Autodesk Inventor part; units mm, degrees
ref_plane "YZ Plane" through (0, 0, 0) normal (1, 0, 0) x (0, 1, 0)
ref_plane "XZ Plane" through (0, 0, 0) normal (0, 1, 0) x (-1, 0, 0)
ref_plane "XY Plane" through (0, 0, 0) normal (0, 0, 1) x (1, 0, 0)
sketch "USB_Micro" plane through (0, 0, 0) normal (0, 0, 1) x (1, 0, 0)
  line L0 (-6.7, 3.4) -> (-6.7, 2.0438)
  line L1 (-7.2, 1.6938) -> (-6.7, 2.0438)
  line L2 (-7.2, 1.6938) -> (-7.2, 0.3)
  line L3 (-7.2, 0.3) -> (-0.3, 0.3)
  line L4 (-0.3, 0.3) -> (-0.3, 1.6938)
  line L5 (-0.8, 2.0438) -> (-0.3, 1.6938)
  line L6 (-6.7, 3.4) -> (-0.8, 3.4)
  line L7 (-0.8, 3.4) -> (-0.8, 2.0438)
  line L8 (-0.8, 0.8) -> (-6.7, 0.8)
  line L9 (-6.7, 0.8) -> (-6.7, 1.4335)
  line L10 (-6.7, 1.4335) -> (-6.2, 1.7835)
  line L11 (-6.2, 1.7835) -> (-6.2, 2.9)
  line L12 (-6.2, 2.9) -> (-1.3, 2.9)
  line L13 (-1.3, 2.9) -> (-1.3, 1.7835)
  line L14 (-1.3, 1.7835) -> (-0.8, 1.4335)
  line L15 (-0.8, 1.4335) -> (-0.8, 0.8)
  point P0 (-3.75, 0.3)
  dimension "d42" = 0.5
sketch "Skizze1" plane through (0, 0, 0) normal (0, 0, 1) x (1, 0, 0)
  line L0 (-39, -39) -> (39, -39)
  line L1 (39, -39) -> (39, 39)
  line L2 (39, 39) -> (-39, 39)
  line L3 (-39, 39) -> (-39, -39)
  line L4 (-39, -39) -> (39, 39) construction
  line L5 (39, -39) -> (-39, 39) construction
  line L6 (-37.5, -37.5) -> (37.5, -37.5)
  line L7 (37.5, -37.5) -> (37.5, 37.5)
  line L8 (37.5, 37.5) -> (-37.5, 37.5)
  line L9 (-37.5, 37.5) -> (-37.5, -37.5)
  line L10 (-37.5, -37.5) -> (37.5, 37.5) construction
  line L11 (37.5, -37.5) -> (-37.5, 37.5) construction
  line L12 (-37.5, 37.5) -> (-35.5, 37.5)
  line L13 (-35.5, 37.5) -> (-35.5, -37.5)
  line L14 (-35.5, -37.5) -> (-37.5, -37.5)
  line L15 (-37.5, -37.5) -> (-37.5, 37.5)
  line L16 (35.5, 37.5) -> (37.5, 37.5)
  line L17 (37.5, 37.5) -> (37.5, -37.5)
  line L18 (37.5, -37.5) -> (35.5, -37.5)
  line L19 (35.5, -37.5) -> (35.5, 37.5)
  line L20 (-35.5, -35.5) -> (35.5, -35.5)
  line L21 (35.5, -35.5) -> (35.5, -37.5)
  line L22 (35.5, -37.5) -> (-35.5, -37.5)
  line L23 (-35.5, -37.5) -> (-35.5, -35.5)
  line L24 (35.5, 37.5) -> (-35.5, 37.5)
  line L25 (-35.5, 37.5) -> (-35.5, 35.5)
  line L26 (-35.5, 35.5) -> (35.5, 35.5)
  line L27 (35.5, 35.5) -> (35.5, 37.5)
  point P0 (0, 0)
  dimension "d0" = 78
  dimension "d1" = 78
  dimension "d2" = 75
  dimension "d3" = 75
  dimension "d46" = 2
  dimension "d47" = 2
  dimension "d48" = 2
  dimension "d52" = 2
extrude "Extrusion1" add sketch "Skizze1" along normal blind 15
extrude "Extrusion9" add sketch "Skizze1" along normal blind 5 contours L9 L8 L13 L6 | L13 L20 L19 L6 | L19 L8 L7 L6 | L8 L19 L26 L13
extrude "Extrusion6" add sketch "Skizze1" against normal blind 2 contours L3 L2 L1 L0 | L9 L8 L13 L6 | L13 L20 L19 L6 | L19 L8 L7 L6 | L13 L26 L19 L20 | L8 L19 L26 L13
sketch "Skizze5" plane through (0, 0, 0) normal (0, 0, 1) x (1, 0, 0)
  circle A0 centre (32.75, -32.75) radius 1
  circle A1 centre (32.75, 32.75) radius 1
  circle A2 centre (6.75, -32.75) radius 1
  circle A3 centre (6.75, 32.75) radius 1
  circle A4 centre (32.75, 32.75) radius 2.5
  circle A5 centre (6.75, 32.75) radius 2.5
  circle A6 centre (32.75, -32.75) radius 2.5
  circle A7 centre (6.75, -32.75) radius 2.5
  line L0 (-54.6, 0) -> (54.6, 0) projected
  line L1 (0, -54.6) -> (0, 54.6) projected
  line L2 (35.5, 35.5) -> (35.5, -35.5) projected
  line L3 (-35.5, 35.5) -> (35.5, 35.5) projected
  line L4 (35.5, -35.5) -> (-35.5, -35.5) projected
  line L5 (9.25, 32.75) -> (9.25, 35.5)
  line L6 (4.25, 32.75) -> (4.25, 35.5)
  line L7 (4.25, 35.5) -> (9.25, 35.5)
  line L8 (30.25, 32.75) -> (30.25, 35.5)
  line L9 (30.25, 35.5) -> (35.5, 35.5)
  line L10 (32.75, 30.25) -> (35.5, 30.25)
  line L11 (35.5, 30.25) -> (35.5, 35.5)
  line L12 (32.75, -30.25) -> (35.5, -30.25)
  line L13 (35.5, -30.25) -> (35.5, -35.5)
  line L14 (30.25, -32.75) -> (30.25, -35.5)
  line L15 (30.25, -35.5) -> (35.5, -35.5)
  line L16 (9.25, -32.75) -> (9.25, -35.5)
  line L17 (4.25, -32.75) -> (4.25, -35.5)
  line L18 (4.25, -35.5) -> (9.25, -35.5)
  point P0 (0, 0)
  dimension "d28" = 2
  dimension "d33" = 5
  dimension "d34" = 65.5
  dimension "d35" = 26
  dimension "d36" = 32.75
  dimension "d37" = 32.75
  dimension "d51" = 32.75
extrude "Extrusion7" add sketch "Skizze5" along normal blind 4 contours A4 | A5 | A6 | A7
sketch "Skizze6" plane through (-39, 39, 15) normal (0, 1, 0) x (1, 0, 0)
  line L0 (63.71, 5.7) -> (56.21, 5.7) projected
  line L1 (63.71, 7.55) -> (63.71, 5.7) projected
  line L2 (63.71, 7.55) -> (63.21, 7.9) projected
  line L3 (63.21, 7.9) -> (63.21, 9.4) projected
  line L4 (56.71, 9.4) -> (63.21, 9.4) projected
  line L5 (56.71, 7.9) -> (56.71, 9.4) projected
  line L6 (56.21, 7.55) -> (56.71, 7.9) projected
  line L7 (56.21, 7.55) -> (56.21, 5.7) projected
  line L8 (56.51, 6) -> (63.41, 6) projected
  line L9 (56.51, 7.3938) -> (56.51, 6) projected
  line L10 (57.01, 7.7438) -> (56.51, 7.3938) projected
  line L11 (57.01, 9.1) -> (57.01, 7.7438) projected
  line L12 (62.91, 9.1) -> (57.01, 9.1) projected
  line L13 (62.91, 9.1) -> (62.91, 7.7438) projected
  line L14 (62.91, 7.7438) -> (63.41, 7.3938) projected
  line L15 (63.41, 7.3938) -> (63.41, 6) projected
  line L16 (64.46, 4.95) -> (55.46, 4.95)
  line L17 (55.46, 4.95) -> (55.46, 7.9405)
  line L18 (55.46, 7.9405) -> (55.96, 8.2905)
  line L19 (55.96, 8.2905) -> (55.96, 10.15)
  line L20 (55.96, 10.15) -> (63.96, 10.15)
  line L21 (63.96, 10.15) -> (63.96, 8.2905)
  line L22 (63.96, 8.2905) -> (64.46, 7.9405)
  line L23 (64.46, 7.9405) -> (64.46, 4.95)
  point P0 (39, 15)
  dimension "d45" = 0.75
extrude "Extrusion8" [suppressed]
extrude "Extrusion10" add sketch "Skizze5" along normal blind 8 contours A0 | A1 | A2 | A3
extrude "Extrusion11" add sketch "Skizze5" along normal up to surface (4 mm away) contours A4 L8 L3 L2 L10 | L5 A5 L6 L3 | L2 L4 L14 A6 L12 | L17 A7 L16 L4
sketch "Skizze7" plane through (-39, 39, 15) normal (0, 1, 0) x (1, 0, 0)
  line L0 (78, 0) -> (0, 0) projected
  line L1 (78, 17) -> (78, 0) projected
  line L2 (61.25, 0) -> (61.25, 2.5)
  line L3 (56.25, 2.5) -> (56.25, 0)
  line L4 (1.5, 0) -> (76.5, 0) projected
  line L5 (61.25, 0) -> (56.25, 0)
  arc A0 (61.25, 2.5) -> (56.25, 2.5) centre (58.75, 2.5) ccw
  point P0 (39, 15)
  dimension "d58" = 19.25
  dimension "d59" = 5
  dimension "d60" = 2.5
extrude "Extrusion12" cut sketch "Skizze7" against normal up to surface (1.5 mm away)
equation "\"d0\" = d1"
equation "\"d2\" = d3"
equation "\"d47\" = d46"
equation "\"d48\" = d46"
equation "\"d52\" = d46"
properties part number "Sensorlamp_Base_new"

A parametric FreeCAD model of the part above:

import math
import FreeCAD as App
import Part
import Sketcher
Q = App.Units.Quantity

doc = App.newDocument("Part")
params = doc.addObject("Spreadsheet::Sheet", "Params")
for row, (alias, value) in enumerate([
    ("sketch1_width", "78 mm"),
    ("sketch1_width2", "75 mm"),
    ("pad1_length", "15 mm"),
    ("sketch2_width", "75 mm"),
    ("pad2_length", "5 mm"),
    ("sketch3_width", "78 mm"),
    ("pad3_length", "2 mm"),
    ("sketch4_diameter", "5 mm"),
    ("sketch4_diameter2", "2 mm"),
    ("pad4_length", "4 mm"),
    ("sketch5_diameter", "2 mm"),
    ("pad5_length", "8 mm"),
    ("sketch6_radius", "2.5 mm"),
    ("sketch6_width", "2.75 mm"),
    ("pad6_length", "4 mm"),
    ("sketch7_radius", "2.5 mm"),
    ("sketch7_height", "2.5 mm"),
    ("pocket1_length", "1.5 mm"),
], start=1):
    params.set(f"A{row}", alias)
    params.set(f"B{row}", "=" + value)
    params.setAlias(f"B{row}", alias)

body = doc.addObject("PartDesign::Body", "Body")

# Sketch on XY plane
sketch1 = body.newObject("Sketcher::SketchObject", "Sketch")
sketch1.AttachmentSupport = (doc.getObject("XY_Plane"), [""])
sketch1.MapMode = "FlatFace"
sketch1.addGeometry([
    Part.LineSegment(App.Vector(-39, 39, 0), App.Vector(-39, -39, 0)),  # 0
    Part.LineSegment(App.Vector(-39, -39, 0), App.Vector(39, -39, 0)),  # 1
    Part.LineSegment(App.Vector(39, -39, 0), App.Vector(39, 39, 0)),  # 2
    Part.LineSegment(App.Vector(39, 39, 0), App.Vector(-39, 39, 0)),  # 3
    Part.LineSegment(App.Vector(38, -38, 0), App.Vector(-38, -38, 0)),  # 4
    Part.LineSegment(App.Vector(-38, -38, 0), App.Vector(-38, 38, 0)),  # 5
    Part.LineSegment(App.Vector(-38, 38, 0), App.Vector(38, 38, 0)),  # 6
    Part.LineSegment(App.Vector(38, 38, 0), App.Vector(38, -38, 0)),  # 7
], False)
sketch1.addConstraint([
    Sketcher.Constraint("Coincident", 0, 2, 1, 1),
    Sketcher.Constraint("Coincident", 1, 2, 2, 1),
    Sketcher.Constraint("Coincident", 2, 2, 3, 1),
    Sketcher.Constraint("Coincident", 3, 2, 0, 1),
    Sketcher.Constraint("Coincident", 4, 2, 5, 1),
    Sketcher.Constraint("Coincident", 5, 2, 6, 1),
    Sketcher.Constraint("Coincident", 6, 2, 7, 1),
    Sketcher.Constraint("Coincident", 7, 2, 4, 1),
    Sketcher.Constraint("Vertical", 0),
    Sketcher.Constraint("Horizontal", 1),
    Sketcher.Constraint("Vertical", 2),
    Sketcher.Constraint("Horizontal", 3),
    Sketcher.Constraint("Horizontal", 4),
    Sketcher.Constraint("Vertical", 5),
    Sketcher.Constraint("Horizontal", 6),
    Sketcher.Constraint("Vertical", 7),
    Sketcher.Constraint("Symmetric", 0, 2, 2, 2, -1, 1),
    Sketcher.Constraint("Symmetric", 4, 2, 6, 2, -1, 1),
    Sketcher.Constraint("Equal", 3, 0),
    Sketcher.Constraint("Equal", 6, 5),
    Sketcher.Constraint("DistanceX", 1, 1, 1, 2, Q("78 mm")),
    Sketcher.Constraint("DistanceX", 4, 2, 4, 1, Q("75 mm")),
])
sketch1.setExpression("Constraints[20]", "Params.sketch1_width")
sketch1.setExpression("Constraints[21]", "Params.sketch1_width2")
pad1 = body.newObject("PartDesign::Pad", "Pad")
pad1.Profile = sketch1
pad1.setExpression("Length", "Params.pad1_length")

# Sketch on XY plane
sketch2 = body.newObject("Sketcher::SketchObject", "Sketch001")
sketch2.AttachmentSupport = (doc.getObject("XY_Plane"), [""])
sketch2.MapMode = "FlatFace"
sketch2.addGeometry([
    Part.LineSegment(App.Vector(-38, 38, 0), App.Vector(-38, -38, 0)),  # 0
    Part.LineSegment(App.Vector(-38, -38, 0), App.Vector(38, -38, 0)),  # 1
    Part.LineSegment(App.Vector(38, -38, 0), App.Vector(38, 38, 0)),  # 2
    Part.LineSegment(App.Vector(38, 38, 0), App.Vector(-38, 38, 0)),  # 3
    Part.LineSegment(App.Vector(-36, -36, 0), App.Vector(-36, 36, 0)),  # 4
    Part.LineSegment(App.Vector(-36, 36, 0), App.Vector(36, 36, 0)),  # 5
    Part.LineSegment(App.Vector(36, 36, 0), App.Vector(36, -36, 0)),  # 6
    Part.LineSegment(App.Vector(36, -36, 0), App.Vector(-36, -36, 0)),  # 7
], False)
sketch2.addConstraint([
    Sketcher.Constraint("Coincident", 0, 2, 1, 1),
    Sketcher.Constraint("Coincident", 1, 2, 2, 1),
    Sketcher.Constraint("Coincident", 2, 2, 3, 1),
    Sketcher.Constraint("Coincident", 3, 2, 0, 1),
    Sketcher.Constraint("Coincident", 4, 2, 5, 1),
    Sketcher.Constraint("Coincident", 5, 2, 6, 1),
    Sketcher.Constraint("Coincident", 6, 2, 7, 1),
    Sketcher.Constraint("Coincident", 7, 2, 4, 1),
    Sketcher.Constraint("Vertical", 0),
    Sketcher.Constraint("Horizontal", 1),
    Sketcher.Constraint("Vertical", 2),
    Sketcher.Constraint("Horizontal", 3),
    Sketcher.Constraint("Vertical", 4),
    Sketcher.Constraint("Horizontal", 5),
    Sketcher.Constraint("Vertical", 6),
    Sketcher.Constraint("Horizontal", 7),
    Sketcher.Constraint("Symmetric", 0, 2, 2, 2, -1, 1),
    Sketcher.Constraint("Symmetric", 4, 2, 6, 2, -1, 1),
    Sketcher.Constraint("Equal", 3, 0),
    Sketcher.Constraint("Equal", 7, 4),
    Sketcher.Constraint("DistanceX", 1, 1, 1, 2, Q("75 mm")),
    Sketcher.Constraint("DistanceX", 3, 2, 4, 2, Q("2 mm")),
])
sketch2.setExpression("Constraints[20]", "Params.sketch2_width")
pad2 = body.newObject("PartDesign::Pad", "Pad001")
pad2.Profile = sketch2
pad2.setExpression("Length", "Params.pad2_length")

# Sketch on XY plane
sketch3 = body.newObject("Sketcher::SketchObject", "Sketch002")
sketch3.AttachmentSupport = (doc.getObject("XY_Plane"), [""])
sketch3.MapMode = "FlatFace"
sketch3.addGeometry([
    Part.LineSegment(App.Vector(-39, 39, 0), App.Vector(-39, -39, 0)),
    Part.LineSegment(App.Vector(-39, -39, 0), App.Vector(39, -39, 0)),
    Part.LineSegment(App.Vector(39, -39, 0), App.Vector(39, 39, 0)),
    Part.LineSegment(App.Vector(39, 39, 0), App.Vector(-39, 39, 0)),
], False)
sketch3.addConstraint([
    Sketcher.Constraint("Coincident", 0, 2, 1, 1),
    Sketcher.Constraint("Coincident", 1, 2, 2, 1),
    Sketcher.Constraint("Coincident", 2, 2, 3, 1),
    Sketcher.Constraint("Coincident", 3, 2, 0, 1),
    Sketcher.Constraint("Vertical", 0),
    Sketcher.Constraint("Horizontal", 1),
    Sketcher.Constraint("Vertical", 2),
    Sketcher.Constraint("Horizontal", 3),
    Sketcher.Constraint("Symmetric", 0, 2, 2, 2, -1, 1),
    Sketcher.Constraint("Equal", 3, 0),
    Sketcher.Constraint("DistanceX", 1, 1, 1, 2, Q("78 mm")),
])
sketch3.setExpression("Constraints[10]", "Params.sketch3_width")
pad3 = body.newObject("PartDesign::Pad", "Pad002")
pad3.Profile = sketch3
pad3.setExpression("Length", "Params.pad3_length")
pad3.Reversed = True

# Sketch on XY plane
sketch4 = body.newObject("Sketcher::SketchObject", "Sketch003")
sketch4.AttachmentSupport = (doc.getObject("XY_Plane"), [""])
sketch4.MapMode = "FlatFace"
sketch4.addGeometry([
    Part.Circle(App.Vector(32.8, 32.8, 0), App.Vector(0, 0, 1), 2.5),  # 0
    Part.Circle(App.Vector(32.8, 32.8, 0), App.Vector(0, 0, 1), 1),  # 1
    Part.Circle(App.Vector(6.8, 32.8, 0), App.Vector(0, 0, 1), 2.5),  # 2
    Part.Circle(App.Vector(6.8, 32.8, 0), App.Vector(0, 0, 1), 1),  # 3
    Part.Circle(App.Vector(32.8, -32.8, 0), App.Vector(0, 0, 1), 2.5),  # 4
    Part.Circle(App.Vector(32.8, -32.8, 0), App.Vector(0, 0, 1), 1),  # 5
    Part.Circle(App.Vector(6.8, -32.8, 0), App.Vector(0, 0, 1), 2.5),  # 6
    Part.Circle(App.Vector(6.8, -32.8, 0), App.Vector(0, 0, 1), 1),  # 7
], False)
sketch4.addConstraint([
    Sketcher.Constraint("Coincident", 1, 3, 0, 3),
    Sketcher.Constraint("Coincident", 3, 3, 2, 3),
    Sketcher.Constraint("Coincident", 5, 3, 4, 3),
    Sketcher.Constraint("Coincident", 7, 3, 6, 3),
    Sketcher.Constraint("Equal", 0, 2),
    Sketcher.Constraint("Equal", 1, 3),
    Sketcher.Constraint("Equal", 2, 4),
    Sketcher.Constraint("Equal", 3, 5),
    Sketcher.Constraint("Equal", 4, 6),
    Sketcher.Constraint("Equal", 5, 7),
    Sketcher.Constraint("Symmetric", 0, 3, 4, 3, -1),
    Sketcher.Constraint("Symmetric", 2, 3, 6, 3, -1),
    Sketcher.Constraint("Horizontal", 1, 3, 2, 3),
    Sketcher.Constraint("Diameter", 0, Q("5 mm")),
    Sketcher.Constraint("Diameter", 1, Q("2 mm")),
    Sketcher.Constraint("DistanceX", 2, 3, 0, 3, Q("26 mm")),
    Sketcher.Constraint("DistanceY", 4, 3, 0, 3, Q("65.5 mm")),
    Sketcher.Constraint("DistanceX", -1, 1, 0, 3, Q("32.75 mm")),
])
sketch4.setExpression("Constraints[13]", "Params.sketch4_diameter")
sketch4.setExpression("Constraints[14]", "Params.sketch4_diameter2")
pad4 = body.newObject("PartDesign::Pad", "Pad003")
pad4.Profile = sketch4
pad4.setExpression("Length", "Params.pad4_length")

# Sketch on XY plane
sketch5 = body.newObject("Sketcher::SketchObject", "Sketch004")
sketch5.AttachmentSupport = (doc.getObject("XY_Plane"), [""])
sketch5.MapMode = "FlatFace"
sketch5.addGeometry([
    Part.Circle(App.Vector(32.8, -32.8, 0), App.Vector(0, 0, 1), 1),
    Part.Circle(App.Vector(32.8, 32.8, 0), App.Vector(0, 0, 1), 1),
    Part.Circle(App.Vector(6.8, -32.8, 0), App.Vector(0, 0, 1), 1),
    Part.Circle(App.Vector(6.8, 32.8, 0), App.Vector(0, 0, 1), 1),
], False)
sketch5.addConstraint([
    Sketcher.Constraint("Equal", 0, 1),
    Sketcher.Constraint("Equal", 1, 2),
    Sketcher.Constraint("Equal", 2, 3),
    Sketcher.Constraint("Symmetric", 0, 3, 1, 3, -1),
    Sketcher.Constraint("Symmetric", 2, 3, 3, 3, -1),
    Sketcher.Constraint("Horizontal", 0, 3, 2, 3),
    Sketcher.Constraint("Diameter", 0, Q("2 mm")),
    Sketcher.Constraint("DistanceX", 2, 3, 0, 3, Q("26 mm")),
    Sketcher.Constraint("DistanceY", 0, 3, 1, 3, Q("65.5 mm")),
    Sketcher.Constraint("DistanceX", -1, 1, 0, 3, Q("32.75 mm")),
])
sketch5.setExpression("Constraints[6]", "Params.sketch5_diameter")
pad5 = body.newObject("PartDesign::Pad", "Pad004")
pad5.Profile = sketch5
pad5.setExpression("Length", "Params.pad5_length")

# Sketch on XY plane
sketch6 = body.newObject("Sketcher::SketchObject", "Sketch005")
sketch6.AttachmentSupport = (doc.getObject("XY_Plane"), [""])
sketch6.MapMode = "FlatFace"
sketch6.addGeometry([
    Part.ArcOfCircle(Part.Circle(App.Vector(32.8, 32.8, 0), App.Vector(0, 0, 1), 2.5), math.radians(-90), math.radians(180)),  # 0
    Part.LineSegment(App.Vector(32.8, 30.2, 0), App.Vector(35.5, 30.2, 0)),  # 1
    Part.LineSegment(App.Vector(35.5, 30.2, 0), App.Vector(35.5, 35.5, 0)),  # 2
    Part.LineSegment(App.Vector(35.5, 35.5, 0), App.Vector(30.2, 35.5, 0)),  # 3
    Part.LineSegment(App.Vector(30.2, 35.5, 0), App.Vector(30.2, 32.8, 0)),  # 4
    Part.LineSegment(App.Vector(9.2, 32.8, 0), App.Vector(9.2, 35.5, 0)),  # 5
    Part.LineSegment(App.Vector(9.2, 35.5, 0), App.Vector(4.2, 35.5, 0)),  # 6
    Part.LineSegment(App.Vector(4.2, 35.5, 0), App.Vector(4.2, 32.8, 0)),  # 7
    Part.ArcOfCircle(Part.Circle(App.Vector(6.8, 32.8, 0), App.Vector(0, 0, 1), 2.5), math.radians(0), math.radians(180)),  # 8
    Part.LineSegment(App.Vector(35.5, -35.5, 0), App.Vector(35.5, -30.2, 0)),  # 9
    Part.LineSegment(App.Vector(35.5, -30.2, 0), App.Vector(32.8, -30.2, 0)),  # 10
    Part.ArcOfCircle(Part.Circle(App.Vector(32.8, -32.8, 0), App.Vector(0, 0, 1), 2.5), math.radians(180), math.radians(450)),  # 11
    Part.LineSegment(App.Vector(30.2, -32.8, 0), App.Vector(30.2, -35.5, 0)),  # 12
    Part.LineSegment(App.Vector(30.2, -35.5, 0), App.Vector(35.5, -35.5, 0)),  # 13
    Part.LineSegment(App.Vector(4.2, -32.8, 0), App.Vector(4.2, -35.5, 0)),  # 14
    Part.LineSegment(App.Vector(4.2, -35.5, 0), App.Vector(9.2, -35.5, 0)),  # 15
    Part.LineSegment(App.Vector(9.2, -35.5, 0), App.Vector(9.2, -32.8, 0)),  # 16
    Part.ArcOfCircle(Part.Circle(App.Vector(6.8, -32.8, 0), App.Vector(0, 0, 1), 2.5), math.radians(180), math.radians(360)),  # 17
], False)
sketch6.addConstraint([
    Sketcher.Constraint("Tangent", 0, 1, 1, 1),
    Sketcher.Constraint("Coincident", 1, 2, 2, 1),
    Sketcher.Constraint("Coincident", 2, 2, 3, 1),
    Sketcher.Constraint("Coincident", 3, 2, 4, 1),
    Sketcher.Constraint("Tangent", 4, 2, 0, 2),
    Sketcher.Constraint("Coincident", 5, 2, 6, 1),
    Sketcher.Constraint("Coincident", 6, 2, 7, 1),
    Sketcher.Constraint("Tangent", 7, 2, 8, 2),
    Sketcher.Constraint("Tangent", 8, 1, 5, 1),
    Sketcher.Constraint("Coincident", 9, 2, 10, 1),
    Sketcher.Constraint("Tangent", 10, 2, 11, 2),
    Sketcher.Constraint("Tangent", 11, 1, 12, 1),
    Sketcher.Constraint("Coincident", 12, 2, 13, 1),
    Sketcher.Constraint("Coincident", 13, 2, 9, 1),
    Sketcher.Constraint("Coincident", 14, 2, 15, 1),
    Sketcher.Constraint("Coincident", 15, 2, 16, 1),
    Sketcher.Constraint("Tangent", 16, 2, 17, 2),
    Sketcher.Constraint("Tangent", 17, 1, 14, 1),
    Sketcher.Constraint("Horizontal", 1),
    Sketcher.Constraint("Vertical", 2),
    Sketcher.Constraint("Horizontal", 3),
    Sketcher.Constraint("Vertical", 4),
    Sketcher.Constraint("Vertical", 5),
    Sketcher.Constraint("Horizontal", 6),
    Sketcher.Constraint("Vertical", 7),
    Sketcher.Constraint("Vertical", 9),
    Sketcher.Constraint("Horizontal", 10),
    Sketcher.Constraint("Vertical", 12),
    Sketcher.Constraint("Horizontal", 13),
    Sketcher.Constraint("Vertical", 14),
    Sketcher.Constraint("Horizontal", 15),
    Sketcher.Constraint("Vertical", 16),
    Sketcher.Constraint("Equal", 0, 8),
    Sketcher.Constraint("Equal", 8, 11),
    Sketcher.Constraint("Equal", 11, 17),
    Sketcher.Constraint("Symmetric", 0, 3, 11, 3, -1),
    Sketcher.Constraint("Symmetric", 8, 3, 17, 3, -1),
    Sketcher.Constraint("Symmetric", 2, 2, 13, 2, -1),
    Sketcher.Constraint("Horizontal", 0, 3, 8, 3),
    Sketcher.Constraint("Horizontal", 3, 2, 5, 2),
    Sketcher.Constraint("Horizontal", 13, 2, 14, 2),
    Sketcher.Constraint("Equal", 13, 2),
    Sketcher.Constraint("Radius", 0, Q("2.5 mm")),
    Sketcher.Constraint("DistanceX", 8, 3, 0, 3, Q("26 mm")),
    Sketcher.Constraint("DistanceY", 11, 3, 0, 3, Q("65.5 mm")),
    Sketcher.Constraint("DistanceX", -1, 1, 0, 3, Q("32.75 mm")),
    Sketcher.Constraint("DistanceX", 1, 1, 1, 2, Q("2.75 mm")),
])
sketch6.setExpression("Constraints[42]", "Params.sketch6_radius")
sketch6.setExpression("Constraints[46]", "Params.sketch6_width")
pad6 = body.newObject("PartDesign::Pad", "Pad005")
pad6.Profile = sketch6
pad6.setExpression("Length", "Params.pad6_length")

# Sketch on XZ plane
sketch7 = body.newObject("Sketcher::SketchObject", "Sketch006")
sketch7.AttachmentSupport = (doc.getObject("XZ_Plane"), [""])
sketch7.MapMode = "FlatFace"
sketch7.AttachmentOffset = App.Placement(App.Vector(0, 0, -39), App.Rotation())
sketch7.addGeometry([
    Part.LineSegment(App.Vector(17.2, 15, 0), App.Vector(22.2, 15, 0)),
    Part.LineSegment(App.Vector(22.2, 15, 0), App.Vector(22.2, 12.5, 0)),
    Part.ArcOfCircle(Part.Circle(App.Vector(19.8, 12.5, 0), App.Vector(0, 0, 1), 2.5), math.radians(180), math.radians(360)),
    Part.LineSegment(App.Vector(17.2, 12.5, 0), App.Vector(17.2, 15, 0)),
], False)
sketch7.addConstraint([
    Sketcher.Constraint("Coincident", 0, 2, 1, 1),
    Sketcher.Constraint("Tangent", 1, 2, 2, 2),
    Sketcher.Constraint("Tangent", 2, 1, 3, 1),
    Sketcher.Constraint("Coincident", 3, 2, 0, 1),
    Sketcher.Constraint("Horizontal", 0),
    Sketcher.Constraint("Vertical", 1),
    Sketcher.Constraint("Vertical", 3),
    Sketcher.Constraint("Radius", 2, Q("2.5 mm")),
    Sketcher.Constraint("DistanceY", 1, 2, 1, 1, Q("2.5 mm")),
    Sketcher.Constraint("DistanceY", -1, 1, 0, 2, Q("15 mm")),
    Sketcher.Constraint("DistanceX", -1, 1, 2, 3, Q("19.75 mm")),
])
sketch7.setExpression("Constraints[7]", "Params.sketch7_radius")
sketch7.setExpression("Constraints[8]", "Params.sketch7_height")
pocket1 = body.newObject("PartDesign::Pocket", "Pocket")
pocket1.Profile = sketch7
pocket1.setExpression("Length", "Params.pocket1_length")
pocket1.Reversed = True

doc.recompute()
